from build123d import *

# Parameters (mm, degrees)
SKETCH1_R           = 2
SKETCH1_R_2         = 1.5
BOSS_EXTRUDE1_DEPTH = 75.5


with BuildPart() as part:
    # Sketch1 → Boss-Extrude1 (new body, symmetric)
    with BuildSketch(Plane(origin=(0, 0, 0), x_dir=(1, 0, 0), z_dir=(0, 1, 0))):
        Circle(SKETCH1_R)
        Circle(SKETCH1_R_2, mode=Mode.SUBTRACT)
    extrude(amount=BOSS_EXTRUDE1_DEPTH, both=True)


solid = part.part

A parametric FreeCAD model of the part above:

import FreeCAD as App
import Part
import Sketcher

doc = App.newDocument("Part")
body = doc.addObject("PartDesign::Body", "Body")

# Sketch on XZ plane
sketch1 = body.newObject("Sketcher::SketchObject", "Sketch")
sketch1.AttachmentSupport = (doc.getObject("XZ_Plane"), [""])
sketch1.MapMode = "FlatFace"
sketch1.addGeometry([
    Part.Circle(App.Vector(0, 0, 0), App.Vector(0, 0, 1), 2),
    Part.Circle(App.Vector(0, 0, 0), App.Vector(0, 0, 1), 1.5),
], False)
sketch1.addConstraint([
    Sketcher.Constraint("Coincident", 0, 3, -1, 1),
    Sketcher.Constraint("Coincident", 1, 3, -1, 1),
    Sketcher.Constraint("Diameter", 0, 4.0),
    Sketcher.Constraint("Diameter", 1, 3.0),
])
pad1 = body.newObject("PartDesign::Pad", "Pad")
pad1.Profile = sketch1
pad1.Length = 151
pad1.Midplane = True

doc.recompute()
